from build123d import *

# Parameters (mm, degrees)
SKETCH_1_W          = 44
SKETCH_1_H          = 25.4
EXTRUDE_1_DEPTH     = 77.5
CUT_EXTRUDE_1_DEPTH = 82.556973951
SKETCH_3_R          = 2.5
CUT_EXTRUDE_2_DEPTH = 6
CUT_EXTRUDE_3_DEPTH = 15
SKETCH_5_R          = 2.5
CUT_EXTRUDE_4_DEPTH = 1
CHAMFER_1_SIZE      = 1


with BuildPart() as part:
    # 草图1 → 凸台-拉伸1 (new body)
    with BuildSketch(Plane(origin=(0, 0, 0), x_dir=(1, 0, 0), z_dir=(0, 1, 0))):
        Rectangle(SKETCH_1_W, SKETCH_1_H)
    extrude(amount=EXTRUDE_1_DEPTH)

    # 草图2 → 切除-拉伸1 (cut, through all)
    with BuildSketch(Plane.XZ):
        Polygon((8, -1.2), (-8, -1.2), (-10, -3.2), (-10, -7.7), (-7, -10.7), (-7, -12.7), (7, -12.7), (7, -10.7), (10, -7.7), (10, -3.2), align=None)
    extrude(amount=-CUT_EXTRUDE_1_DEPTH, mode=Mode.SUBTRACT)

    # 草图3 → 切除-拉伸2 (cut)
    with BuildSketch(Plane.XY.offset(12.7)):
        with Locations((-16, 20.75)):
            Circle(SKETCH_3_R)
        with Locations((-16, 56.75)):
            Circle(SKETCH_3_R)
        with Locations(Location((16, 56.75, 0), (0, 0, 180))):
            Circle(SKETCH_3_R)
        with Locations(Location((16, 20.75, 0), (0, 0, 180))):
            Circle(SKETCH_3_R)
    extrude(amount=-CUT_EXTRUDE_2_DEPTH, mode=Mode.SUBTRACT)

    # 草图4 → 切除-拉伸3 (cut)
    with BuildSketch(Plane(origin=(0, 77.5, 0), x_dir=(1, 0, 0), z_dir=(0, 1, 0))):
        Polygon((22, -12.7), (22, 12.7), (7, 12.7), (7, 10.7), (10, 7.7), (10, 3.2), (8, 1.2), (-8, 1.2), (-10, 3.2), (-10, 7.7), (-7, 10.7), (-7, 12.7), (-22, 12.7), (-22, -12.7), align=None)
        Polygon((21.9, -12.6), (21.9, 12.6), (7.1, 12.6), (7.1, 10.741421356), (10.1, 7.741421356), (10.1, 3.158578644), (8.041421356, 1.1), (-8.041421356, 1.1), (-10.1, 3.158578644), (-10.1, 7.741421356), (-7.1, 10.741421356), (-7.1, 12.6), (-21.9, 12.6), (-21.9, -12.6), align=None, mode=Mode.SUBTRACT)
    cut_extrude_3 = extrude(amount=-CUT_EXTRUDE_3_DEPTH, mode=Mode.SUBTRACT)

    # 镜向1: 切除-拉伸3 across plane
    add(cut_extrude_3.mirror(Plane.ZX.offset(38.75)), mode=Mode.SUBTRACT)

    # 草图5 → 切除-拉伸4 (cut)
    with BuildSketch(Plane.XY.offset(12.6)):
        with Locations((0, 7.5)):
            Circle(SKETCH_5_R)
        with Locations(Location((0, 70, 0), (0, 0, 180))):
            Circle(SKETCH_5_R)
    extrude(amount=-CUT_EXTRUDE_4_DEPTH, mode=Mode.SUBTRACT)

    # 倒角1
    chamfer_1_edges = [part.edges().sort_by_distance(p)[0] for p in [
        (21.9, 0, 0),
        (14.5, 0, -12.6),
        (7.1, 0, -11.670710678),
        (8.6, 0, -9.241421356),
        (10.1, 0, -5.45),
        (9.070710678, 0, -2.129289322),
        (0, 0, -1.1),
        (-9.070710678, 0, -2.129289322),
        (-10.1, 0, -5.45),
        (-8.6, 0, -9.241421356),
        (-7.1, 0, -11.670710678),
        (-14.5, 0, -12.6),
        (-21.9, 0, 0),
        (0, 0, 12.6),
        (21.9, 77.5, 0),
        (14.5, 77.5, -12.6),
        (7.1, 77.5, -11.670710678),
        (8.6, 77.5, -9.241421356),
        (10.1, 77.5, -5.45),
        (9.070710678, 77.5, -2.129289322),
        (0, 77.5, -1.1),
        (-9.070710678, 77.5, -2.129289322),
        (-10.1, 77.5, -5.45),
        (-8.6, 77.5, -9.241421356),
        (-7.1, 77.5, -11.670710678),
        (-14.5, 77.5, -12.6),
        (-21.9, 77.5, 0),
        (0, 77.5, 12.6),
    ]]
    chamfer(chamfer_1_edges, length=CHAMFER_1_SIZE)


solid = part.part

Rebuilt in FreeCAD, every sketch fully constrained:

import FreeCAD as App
import Part
import Sketcher

V = App.Vector


def edges_at(feature, points):
    """Names of the edges that pass closest to the given points."""
    edges = feature.Shape.Edges
    near = lambda p: min(range(len(edges)), key=lambda i: edges[i].distToShape(Part.Vertex(*p))[0])
    return sorted({f"Edge{near(p) + 1}" for p in points})

doc = App.newDocument("Part")
body = doc.addObject("PartDesign::Body", "Body")

# Sketch on XZ plane
sketch1 = body.newObject("Sketcher::SketchObject", "Sketch")
sketch1.AttachmentSupport = (doc.getObject("XZ_Plane"), [""])
sketch1.MapMode = "FlatFace"
sketch1.addGeometry(Part.LineSegment(V(-22, -13, 0), V(-22, 13, 0)), False)
sketch1.addGeometry(Part.LineSegment(V(-22, 13, 0), V(22, 13, 0)), False)
sketch1.addGeometry(Part.LineSegment(V(22, 13, 0), V(22, -13, 0)), False)
sketch1.addGeometry(Part.LineSegment(V(22, -13, 0), V(-22, -13, 0)), False)
sketch1.addConstraint(Sketcher.Constraint("Coincident", 0, 2, 1, 1))
sketch1.addConstraint(Sketcher.Constraint("Coincident", 1, 2, 2, 1))
sketch1.addConstraint(Sketcher.Constraint("Coincident", 2, 2, 3, 1))
sketch1.addConstraint(Sketcher.Constraint("Coincident", 3, 2, 0, 1))
sketch1.addConstraint(Sketcher.Constraint("Vertical", 0))
sketch1.addConstraint(Sketcher.Constraint("Horizontal", 1))
sketch1.addConstraint(Sketcher.Constraint("Vertical", 2))
sketch1.addConstraint(Sketcher.Constraint("Horizontal", 3))
sketch1.addConstraint(Sketcher.Constraint("Symmetric", 0, 2, 2, 2, -1, 1))
sketch1.addConstraint(Sketcher.Constraint("DistanceX", 1, 1, 1, 2, 44.0))
sketch1.addConstraint(Sketcher.Constraint("DistanceY", 0, 1, 0, 2, 25.4))
pad1 = body.newObject("PartDesign::Pad", "Pad")
pad1.Profile = sketch1
pad1.Length = 77.5
pad1.Reversed = True

# Sketch on XZ plane
sketch2 = body.newObject("Sketcher::SketchObject", "Sketch001")
sketch2.AttachmentSupport = (doc.getObject("XZ_Plane"), [""])
sketch2.MapMode = "FlatFace"
sketch2.addGeometry(Part.LineSegment(V(8, -1.2, 0), V(-8, -1.2, 0)), False)
sketch2.addGeometry(Part.LineSegment(V(-8, -1.2, 0), V(-10, -3.2, 0)), False)
sketch2.addGeometry(Part.LineSegment(V(-10, -3.2, 0), V(-10, -7.7, 0)), False)
sketch2.addGeometry(Part.LineSegment(V(-10, -7.7, 0), V(-7, -10.7, 0)), False)
sketch2.addGeometry(Part.LineSegment(V(-7, -10.7, 0), V(-7, -12.7, 0)), False)
sketch2.addGeometry(Part.LineSegment(V(-7, -12.7, 0), V(7, -12.7, 0)), False)
sketch2.addGeometry(Part.LineSegment(V(7, -12.7, 0), V(7, -10.7, 0)), False)
sketch2.addGeometry(Part.LineSegment(V(7, -10.7, 0), V(10, -7.7, 0)), False)
sketch2.addGeometry(Part.LineSegment(V(10, -7.7, 0), V(10, -3.2, 0)), False)
sketch2.addGeometry(Part.LineSegment(V(10, -3.2, 0), V(8, -1.2, 0)), False)
sketch2.addConstraint(Sketcher.Constraint("Coincident", 0, 2, 1, 1))
sketch2.addConstraint(Sketcher.Constraint("Coincident", 1, 2, 2, 1))
sketch2.addConstraint(Sketcher.Constraint("Coincident", 2, 2, 3, 1))
sketch2.addConstraint(Sketcher.Constraint("Coincident", 3, 2, 4, 1))
sketch2.addConstraint(Sketcher.Constraint("Coincident", 4, 2, 5, 1))
sketch2.addConstraint(Sketcher.Constraint("Coincident", 5, 2, 6, 1))
sketch2.addConstraint(Sketcher.Constraint("Coincident", 6, 2, 7, 1))
sketch2.addConstraint(Sketcher.Constraint("Coincident", 7, 2, 8, 1))
sketch2.addConstraint(Sketcher.Constraint("Coincident", 8, 2, 9, 1))
sketch2.addConstraint(Sketcher.Constraint("Coincident", 9, 2, 0, 1))
sketch2.addConstraint(Sketcher.Constraint("Horizontal", 0))
sketch2.addConstraint(Sketcher.Constraint("Vertical", 2))
sketch2.addConstraint(Sketcher.Constraint("Vertical", 4))
sketch2.addConstraint(Sketcher.Constraint("Horizontal", 5))
sketch2.addConstraint(Sketcher.Constraint("Vertical", 6))
sketch2.addConstraint(Sketcher.Constraint("Vertical", 8))
sketch2.addConstraint(Sketcher.Constraint("Symmetric", 3, 2, 6, 2, -2))
sketch2.addConstraint(Sketcher.Constraint("Symmetric", 2, 2, 7, 2, -2))
sketch2.addConstraint(Sketcher.Constraint("Perpendicular", 1, 3))
sketch2.addConstraint(Sketcher.Constraint("Perpendicular", 3, 7))
sketch2.addConstraint(Sketcher.Constraint("Perpendicular", 7, 9))
sketch2.addConstraint(Sketcher.Constraint("Horizontal", 1, 2, 8, 2))
sketch2.addConstraint(Sketcher.Constraint("DistanceX", 0, 2, 0, 1, 16.0))
sketch2.addConstraint(Sketcher.Constraint("DistanceX", 5, 1, 5, 2, 14.0))
sketch2.addConstraint(Sketcher.Constraint("DistanceY", 4, 2, 4, 1, 2.0))
sketch2.addConstraint(Sketcher.Constraint("DistanceY", 2, 2, 2, 1, 4.5))
sketch2.addConstraint(Sketcher.Constraint("DistanceX", 1, 2, -1, 1, 10.0))
sketch2.addConstraint(Sketcher.Constraint("DistanceY", 0, 2, -1, 1, 1.2))
pocket1 = body.newObject("PartDesign::Pocket", "Pocket")
pocket1.Profile = sketch2
pocket1.Type = "ThroughAll"

# Sketch on XY plane
sketch3 = body.newObject("Sketcher::SketchObject", "Sketch002")
sketch3.AttachmentSupport = (doc.getObject("XY_Plane"), [""])
sketch3.MapMode = "FlatFace"
sketch3.AttachmentOffset = App.Placement(V(0, 0, 12.7), App.Rotation())
sketch3.addGeometry(Part.Circle(V(-16, 20.8, 0), V(0, 0, 1), 2.5), False)
sketch3.addGeometry(Part.Circle(V(-16, 56.8, 0), V(0, 0, 1), 2.5), False)
sketch3.addGeometry(Part.Circle(V(16, 56.8, 0), V(0, 0, 1), 2.5), False)
sketch3.addGeometry(Part.Circle(V(16, 20.8, 0), V(0, 0, 1), 2.5), False)
sketch3.addConstraint(Sketcher.Constraint("Equal", 0, 1))
sketch3.addConstraint(Sketcher.Constraint("Equal", 1, 2))
sketch3.addConstraint(Sketcher.Constraint("Equal", 2, 3))
sketch3.addConstraint(Sketcher.Constraint("Symmetric", 1, 3, 2, 3, -2))
sketch3.addConstraint(Sketcher.Constraint("Symmetric", 0, 3, 3, 3, -2))
sketch3.addConstraint(Sketcher.Constraint("Vertical", 0, 3, 1, 3))
sketch3.addConstraint(Sketcher.Constraint("Diameter", 0, 5.0))
sketch3.addConstraint(Sketcher.Constraint("DistanceX", 0, 3, -1, 1, 16.0))
sketch3.addConstraint(Sketcher.Constraint("DistanceY", 0, 3, 1, 3, 36.0))
sketch3.addConstraint(Sketcher.Constraint("DistanceY", -1, 1, 0, 3, 20.75))
pocket2 = body.newObject("PartDesign::Pocket", "Pocket001")
pocket2.Profile = sketch3
pocket2.Length = 6

# Sketch on XZ plane
sketch4 = body.newObject("Sketcher::SketchObject", "Sketch003")
sketch4.AttachmentSupport = (doc.getObject("XZ_Plane"), [""])
sketch4.MapMode = "FlatFace"
sketch4.AttachmentOffset = App.Placement(V(0, 0, -77.5), App.Rotation())
sketch4.addGeometry(Part.LineSegment(V(22, 12.7, 0), V(22, -12.7, 0)), False)
sketch4.addGeometry(Part.LineSegment(V(22, -12.7, 0), V(7, -12.7, 0)), False)
sketch4.addGeometry(Part.LineSegment(V(7, -12.7, 0), V(7, -10.7, 0)), False)
sketch4.addGeometry(Part.LineSegment(V(7, -10.7, 0), V(10, -7.7, 0)), False)
sketch4.addGeometry(Part.LineSegment(V(10, -7.7, 0), V(10, -3.2, 0)), False)
sketch4.addGeometry(Part.LineSegment(V(10, -3.2, 0), V(8, -1.2, 0)), False)
sketch4.addGeometry(Part.LineSegment(V(8, -1.2, 0), V(-8, -1.2, 0)), False)
sketch4.addGeometry(Part.LineSegment(V(-8, -1.2, 0), V(-10, -3.2, 0)), False)
sketch4.addGeometry(Part.LineSegment(V(-10, -3.2, 0), V(-10, -7.7, 0)), False)
sketch4.addGeometry(Part.LineSegment(V(-10, -7.7, 0), V(-7, -10.7, 0)), False)
sketch4.addGeometry(Part.LineSegment(V(-7, -10.7, 0), V(-7, -12.7, 0)), False)
sketch4.addGeometry(Part.LineSegment(V(-7, -12.7, 0), V(-22, -12.7, 0)), False)
sketch4.addGeometry(Part.LineSegment(V(-22, -12.7, 0), V(-22, 12.7, 0)), False)
sketch4.addGeometry(Part.LineSegment(V(-22, 12.7, 0), V(22, 12.7, 0)), False)
sketch4.addGeometry(Part.LineSegment(V(21.9, -12.6, 0), V(21.9, 12.6, 0)), False)
sketch4.addGeometry(Part.LineSegment(V(21.9, 12.6, 0), V(-21.9, 12.6, 0)), False)
sketch4.addGeometry(Part.LineSegment(V(-21.9, 12.6, 0), V(-21.9, -12.6, 0)), False)
sketch4.addGeometry(Part.LineSegment(V(-21.9, -12.6, 0), V(-7.1, -12.6, 0)), False)
sketch4.addGeometry(Part.LineSegment(V(-7.1, -12.6, 0), V(-7.1, -10.7, 0)), False)
sketch4.addGeometry(Part.LineSegment(V(-7.1, -10.7, 0), V(-10.1, -7.7, 0)), False)
sketch4.addGeometry(Part.LineSegment(V(-10.1, -7.7, 0), V(-10.1, -3.2, 0)), False)
sketch4.addGeometry(Part.LineSegment(V(-10.1, -3.2, 0), V(-8, -1.1, 0)), False)
sketch4.addGeometry(Part.LineSegment(V(-8, -1.1, 0), V(8, -1.1, 0)), False)
sketch4.addGeometry(Part.LineSegment(V(8, -1.1, 0), V(10.1, -3.2, 0)), False)
sketch4.addGeometry(Part.LineSegment(V(10.1, -3.2, 0), V(10.1, -7.7, 0)), False)
sketch4.addGeometry(Part.LineSegment(V(10.1, -7.7, 0), V(7.1, -10.7, 0)), False)
sketch4.addGeometry(Part.LineSegment(V(7.1, -10.7, 0), V(7.1, -12.6, 0)), False)
sketch4.addGeometry(Part.LineSegment(V(7.1, -12.6, 0), V(21.9, -12.6, 0)), False)
sketch4.addConstraint(Sketcher.Constraint("Coincident", 0, 2, 1, 1))
sketch4.addConstraint(Sketcher.Constraint("Coincident", 1, 2, 2, 1))
sketch4.addConstraint(Sketcher.Constraint("Coincident", 2, 2, 3, 1))
sketch4.addConstraint(Sketcher.Constraint("Coincident", 3, 2, 4, 1))
sketch4.addConstraint(Sketcher.Constraint("Coincident", 4, 2, 5, 1))
sketch4.addConstraint(Sketcher.Constraint("Coincident", 5, 2, 6, 1))
sketch4.addConstraint(Sketcher.Constraint("Coincident", 6, 2, 7, 1))
sketch4.addConstraint(Sketcher.Constraint("Coincident", 7, 2, 8, 1))
sketch4.addConstraint(Sketcher.Constraint("Coincident", 8, 2, 9, 1))
sketch4.addConstraint(Sketcher.Constraint("Coincident", 9, 2, 10, 1))
sketch4.addConstraint(Sketcher.Constraint("Coincident", 10, 2, 11, 1))
sketch4.addConstraint(Sketcher.Constraint("Coincident", 11, 2, 12, 1))
sketch4.addConstraint(Sketcher.Constraint("Coincident", 12, 2, 13, 1))
sketch4.addConstraint(Sketcher.Constraint("Coincident", 13, 2, 0, 1))
sketch4.addConstraint(Sketcher.Constraint("Coincident", 14, 2, 15, 1))
sketch4.addConstraint(Sketcher.Constraint("Coincident", 15, 2, 16, 1))
sketch4.addConstraint(Sketcher.Constraint("Coincident", 16, 2, 17, 1))
sketch4.addConstraint(Sketcher.Constraint("Coincident", 17, 2, 18, 1))
sketch4.addConstraint(Sketcher.Constraint("Coincident", 18, 2, 19, 1))
sketch4.addConstraint(Sketcher.Constraint("Coincident", 19, 2, 20, 1))
sketch4.addConstraint(Sketcher.Constraint("Coincident", 20, 2, 21, 1))
sketch4.addConstraint(Sketcher.Constraint("Coincident", 21, 2, 22, 1))
sketch4.addConstraint(Sketcher.Constraint("Coincident", 22, 2, 23, 1))
sketch4.addConstraint(Sketcher.Constraint("Coincident", 23, 2, 24, 1))
sketch4.addConstraint(Sketcher.Constraint("Coincident", 24, 2, 25, 1))
sketch4.addConstraint(Sketcher.Constraint("Coincident", 25, 2, 26, 1))
sketch4.addConstraint(Sketcher.Constraint("Coincident", 26, 2, 27, 1))
sketch4.addConstraint(Sketcher.Constraint("Coincident", 27, 2, 14, 1))
sketch4.addConstraint(Sketcher.Constraint("Vertical", 0))
sketch4.addConstraint(Sketcher.Constraint("Horizontal", 1))
sketch4.addConstraint(Sketcher.Constraint("Vertical", 2))
sketch4.addConstraint(Sketcher.Constraint("Vertical", 4))
sketch4.addConstraint(Sketcher.Constraint("Horizontal", 6))
sketch4.addConstraint(Sketcher.Constraint("Vertical", 8))
sketch4.addConstraint(Sketcher.Constraint("Vertical", 10))
sketch4.addConstraint(Sketcher.Constraint("Horizontal", 11))
sketch4.addConstraint(Sketcher.Constraint("Vertical", 12))
sketch4.addConstraint(Sketcher.Constraint("Horizontal", 13))
sketch4.addConstraint(Sketcher.Constraint("Vertical", 14))
sketch4.addConstraint(Sketcher.Constraint("Horizontal", 15))
sketch4.addConstraint(Sketcher.Constraint("Vertical", 16))
sketch4.addConstraint(Sketcher.Constraint("Horizontal", 17))
sketch4.addConstraint(Sketcher.Constraint("Vertical", 18))
sketch4.addConstraint(Sketcher.Constraint("Vertical", 20))
sketch4.addConstraint(Sketcher.Constraint("Horizontal", 22))
sketch4.addConstraint(Sketcher.Constraint("Vertical", 24))
sketch4.addConstraint(Sketcher.Constraint("Vertical", 26))
sketch4.addConstraint(Sketcher.Constraint("Horizontal", 27))
sketch4.addConstraint(Sketcher.Constraint("Symmetric", 0, 2, 12, 2, -1, 1))
sketch4.addConstraint(Sketcher.Constraint("Symmetric", 14, 2, 16, 2, -1, 1))
sketch4.addConstraint(Sketcher.Constraint("Symmetric", 4, 2, 7, 2, -2))
sketch4.addConstraint(Sketcher.Constraint("Symmetric", 2, 2, 9, 2, -2))
sketch4.addConstraint(Sketcher.Constraint("Symmetric", 20, 2, 23, 2, -2))
sketch4.addConstraint(Sketcher.Constraint("Symmetric", 18, 2, 25, 2, -2))
sketch4.addConstraint(Sketcher.Constraint("Perpendicular", 3, 5))
sketch4.addConstraint(Sketcher.Constraint("Perpendicular", 5, 7))
sketch4.addConstraint(Sketcher.Constraint("Perpendicular", 7, 9))
sketch4.addConstraint(Sketcher.Constraint("Parallel", 9, 19))
sketch4.addConstraint(Sketcher.Constraint("Perpendicular", 19, 21))
sketch4.addConstraint(Sketcher.Constraint("Perpendicular", 21, 23))
sketch4.addConstraint(Sketcher.Constraint("Perpendicular", 23, 25))
sketch4.addConstraint(Sketcher.Constraint("Horizontal", 3, 2, 8, 2))
sketch4.addConstraint(Sketcher.Constraint("Horizontal", 1, 2, 10, 2))
sketch4.addConstraint(Sketcher.Constraint("Horizontal", 17, 2, 26, 2))
sketch4.addConstraint(Sketcher.Constraint("Equal", 9, 19))
sketch4.addConstraint(Sketcher.Constraint("DistanceX", 1, 2, 1, 1, 15.0))
sketch4.addConstraint(Sketcher.Constraint("DistanceX", 6, 2, 6, 1, 16.0))
sketch4.addConstraint(Sketcher.Constraint("DistanceX", 13, 1, 13, 2, 44.0))
sketch4.addConstraint(Sketcher.Constraint("DistanceY", 2, 1, 2, 2, 2.0))
sketch4.addConstraint(Sketcher.Constraint("DistanceX", 15, 2, 15, 1, 43.8))
sketch4.addConstraint(Sketcher.Constraint("DistanceX", 17, 1, 17, 2, 14.8))
sketch4.addConstraint(Sketcher.Constraint("DistanceY", 0, 2, 0, 1, 25.4))
sketch4.addConstraint(Sketcher.Constraint("DistanceY", 4, 1, 4, 2, 4.5))
sketch4.addConstraint(Sketcher.Constraint("DistanceY", 14, 1, 14, 2, 25.2))
sketch4.addConstraint(Sketcher.Constraint("DistanceX", -1, 1, 3, 2, 10.0))
sketch4.addConstraint(Sketcher.Constraint("DistanceY", 21, 2, -1, 1, 1.1))
sketch4.addConstraint(Sketcher.Constraint("DistanceY", 18, 1, 18, 2, 1.858579))
sketch4.addConstraint(Sketcher.Constraint("Distance", 21, 2.91127))
pocket3 = body.newObject("PartDesign::Pocket", "Pocket002")
pocket3.Profile = sketch4
pocket3.Length = 15
pocket3.Reversed = True
doc.recompute()

datumplane = body.newObject("PartDesign::Plane", "DatumPlane")
datumplane.AttachmentSupport = (doc.getObject("XZ_Plane"), [""])
datumplane.MapMode = "FlatFace"
datumplane.AttachmentOffset = App.Placement(V(0, 0, -38.75), App.Rotation())
mirrored = body.newObject("PartDesign::Mirrored", "Mirrored")
mirrored.Originals = [pocket3]
mirrored.MirrorPlane = (datumplane, [""])
body.Tip = mirrored

# Sketch on XY plane
sketch5 = body.newObject("Sketcher::SketchObject", "Sketch004")
sketch5.AttachmentSupport = (doc.getObject("XY_Plane"), [""])
sketch5.MapMode = "FlatFace"
sketch5.AttachmentOffset = App.Placement(V(0, 0, 12.6), App.Rotation())
sketch5.addGeometry(Part.Circle(V(0, 7.5, 0), V(0, 0, 1), 2.5), False)
sketch5.addGeometry(Part.Circle(V(0, 70, 0), V(0, 0, 1), 2.5), False)
sketch5.addConstraint(Sketcher.Constraint("Equal", 0, 1))
sketch5.addConstraint(Sketcher.Constraint("PointOnObject", 0, 3, -2))
sketch5.addConstraint(Sketcher.Constraint("PointOnObject", 1, 3, -2))
sketch5.addConstraint(Sketcher.Constraint("Diameter", 0, 5.0))
sketch5.addConstraint(Sketcher.Constraint("DistanceY", -1, 1, 1, 3, 70.0))
sketch5.addConstraint(Sketcher.Constraint("DistanceY", -1, 1, 0, 3, 7.5))
pocket4 = body.newObject("PartDesign::Pocket", "Pocket003")
pocket4.Profile = sketch5
pocket4.Length = 1
doc.recompute()

chamfer = body.newObject("PartDesign::Chamfer", "Chamfer")
chamfer.Base = (pocket4, edges_at(pocket4, [
    (21.9, 0, 0),
    (14.5, 0, -12.6),
    (7.1, 0, -11.671),
    (8.6, 0, -9.241),
    (10.1, 0, -5.45),
    (9.071, 0, -2.129),
    (0, 0, -1.1),
    (-9.071, 0, -2.129),
    (-10.1, 0, -5.45),
    (-8.6, 0, -9.241),
    (-7.1, 0, -11.671),
    (-14.5, 0, -12.6),
    (-21.9, 0, 0),
    (0, 0, 12.6),
    (21.9, 77.5, 0),
    (14.5, 77.5, -12.6),
    (7.1, 77.5, -11.671),
    (8.6, 77.5, -9.241),
    (10.1, 77.5, -5.45),
    (9.071, 77.5, -2.129),
    (0, 77.5, -1.1),
    (-9.071, 77.5, -2.129),
    (-10.1, 77.5, -5.45),
    (-8.6, 77.5, -9.241),
    (-7.1, 77.5, -11.671),
    (-14.5, 77.5, -12.6),
    (-21.9, 77.5, 0),
    (0, 77.5, 12.6),
]))
chamfer.Size = 1

doc.recompute()
